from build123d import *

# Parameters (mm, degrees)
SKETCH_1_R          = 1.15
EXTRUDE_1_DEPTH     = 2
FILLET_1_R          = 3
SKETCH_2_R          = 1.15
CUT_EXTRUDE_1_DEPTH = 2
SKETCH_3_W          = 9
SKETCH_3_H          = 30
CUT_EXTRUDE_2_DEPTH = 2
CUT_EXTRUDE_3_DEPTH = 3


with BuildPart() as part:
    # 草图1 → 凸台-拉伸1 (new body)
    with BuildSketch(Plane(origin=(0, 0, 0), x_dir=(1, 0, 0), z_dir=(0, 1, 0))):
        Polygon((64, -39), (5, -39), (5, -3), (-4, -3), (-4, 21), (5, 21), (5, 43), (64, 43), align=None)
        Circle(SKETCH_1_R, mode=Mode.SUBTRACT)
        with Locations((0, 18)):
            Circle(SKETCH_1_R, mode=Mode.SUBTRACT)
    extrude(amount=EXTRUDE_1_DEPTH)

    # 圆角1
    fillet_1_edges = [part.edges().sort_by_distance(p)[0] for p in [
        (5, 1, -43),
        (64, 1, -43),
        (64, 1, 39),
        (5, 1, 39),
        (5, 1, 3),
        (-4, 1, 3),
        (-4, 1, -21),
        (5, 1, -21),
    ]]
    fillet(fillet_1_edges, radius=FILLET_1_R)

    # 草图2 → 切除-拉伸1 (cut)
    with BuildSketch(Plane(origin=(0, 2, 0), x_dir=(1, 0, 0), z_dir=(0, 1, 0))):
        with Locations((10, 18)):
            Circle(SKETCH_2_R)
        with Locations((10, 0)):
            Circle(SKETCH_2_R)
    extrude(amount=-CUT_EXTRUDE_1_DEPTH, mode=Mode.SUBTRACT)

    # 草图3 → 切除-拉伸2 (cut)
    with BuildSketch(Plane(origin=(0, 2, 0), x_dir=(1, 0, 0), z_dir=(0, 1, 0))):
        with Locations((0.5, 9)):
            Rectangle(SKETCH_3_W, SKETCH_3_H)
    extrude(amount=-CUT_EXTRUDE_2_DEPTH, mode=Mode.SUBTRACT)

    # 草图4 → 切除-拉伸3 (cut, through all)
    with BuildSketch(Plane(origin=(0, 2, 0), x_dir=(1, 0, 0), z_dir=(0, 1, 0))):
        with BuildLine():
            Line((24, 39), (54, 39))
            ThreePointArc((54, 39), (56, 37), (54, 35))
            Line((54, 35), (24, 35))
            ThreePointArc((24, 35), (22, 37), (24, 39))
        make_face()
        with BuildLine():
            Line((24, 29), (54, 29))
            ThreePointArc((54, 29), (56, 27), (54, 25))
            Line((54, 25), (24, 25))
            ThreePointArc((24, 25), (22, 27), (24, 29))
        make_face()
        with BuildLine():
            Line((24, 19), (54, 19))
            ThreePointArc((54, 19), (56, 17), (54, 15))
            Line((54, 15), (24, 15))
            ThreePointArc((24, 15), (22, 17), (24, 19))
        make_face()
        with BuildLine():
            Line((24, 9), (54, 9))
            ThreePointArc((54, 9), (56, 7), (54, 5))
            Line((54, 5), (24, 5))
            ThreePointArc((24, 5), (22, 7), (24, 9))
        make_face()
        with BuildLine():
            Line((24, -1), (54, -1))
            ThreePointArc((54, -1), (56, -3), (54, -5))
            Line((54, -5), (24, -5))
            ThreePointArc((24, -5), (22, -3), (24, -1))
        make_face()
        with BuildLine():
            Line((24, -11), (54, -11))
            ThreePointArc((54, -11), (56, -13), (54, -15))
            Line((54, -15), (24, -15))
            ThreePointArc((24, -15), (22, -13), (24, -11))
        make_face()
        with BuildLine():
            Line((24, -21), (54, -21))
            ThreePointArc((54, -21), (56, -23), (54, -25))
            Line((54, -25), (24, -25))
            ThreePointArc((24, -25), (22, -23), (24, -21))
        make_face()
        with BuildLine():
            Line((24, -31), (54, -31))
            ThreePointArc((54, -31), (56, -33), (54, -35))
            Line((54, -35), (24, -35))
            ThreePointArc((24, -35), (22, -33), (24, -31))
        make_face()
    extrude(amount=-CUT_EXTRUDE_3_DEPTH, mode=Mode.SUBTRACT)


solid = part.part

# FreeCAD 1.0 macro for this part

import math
import FreeCAD as App
import Part
import Sketcher
from FreeCAD import Vector
Q = App.Units.Quantity


def edges_at(feature, points):
    """Names of the edges that pass closest to the given points."""
    edges = feature.Shape.Edges
    near = lambda p: min(range(len(edges)), key=lambda i: edges[i].distToShape(Part.Vertex(*p))[0])
    return sorted({f"Edge{near(p) + 1}" for p in points})


def add_polygon(sketch, points):
    """Adds a closed chain of lines whose ends are joined by coincident constraints."""
    first, n = sketch.GeometryCount, len(points)
    for a, b in zip(points, points[1:] + points[:1]):
        sketch.addGeometry(Part.LineSegment(App.Vector(*a, 0), App.Vector(*b, 0)), False)
    for i in range(n):
        sketch.addConstraint(Sketcher.Constraint("Coincident", first + i, 2, first + (i + 1) % n, 1))

doc = App.newDocument("Part")
body = doc.addObject("PartDesign::Body", "Body")

# Sketch on XZ plane
sketch1 = doc.addObject("Sketcher::SketchObject", "Sketch")
body.addObject(sketch1)
sketch1.AttachmentSupport = (doc.XZ_Plane, [""])
sketch1.MapMode = "FlatFace"
add_polygon(sketch1, [(5, 39), (64, 39), (64, -43), (5, -43), (5, -21), (-4, -21), (-4, 3), (5, 3)])  # lines 0-7
sketch1.addGeometry(Part.Circle(Vector(0, 0, 0), Vector(0, 0, 1), 1.1), False)  # 8
sketch1.addGeometry(Part.Circle(Vector(0, -18, 0), Vector(0, 0, 1), 1.1), False)  # 9
sketch1.addConstraint(Sketcher.Constraint("Horizontal", 0))
sketch1.addConstraint(Sketcher.Constraint("Vertical", 1))
sketch1.addConstraint(Sketcher.Constraint("Horizontal", 2))
sketch1.addConstraint(Sketcher.Constraint("Vertical", 3))
sketch1.addConstraint(Sketcher.Constraint("Horizontal", 4))
sketch1.addConstraint(Sketcher.Constraint("Vertical", 5))
sketch1.addConstraint(Sketcher.Constraint("Horizontal", 6))
sketch1.addConstraint(Sketcher.Constraint("Vertical", 7))
sketch1.addConstraint(Sketcher.Constraint("Coincident", 8, 3, -1, 1))
sketch1.addConstraint(Sketcher.Constraint("Equal", 8, 9))
sketch1.addConstraint(Sketcher.Constraint("PointOnObject", 9, 3, -2))
sketch1.addConstraint(Sketcher.Constraint("Vertical", 3, 2, 6, 2))
sketch1.addConstraint(Sketcher.Constraint("Diameter", 8, Q("2.3 mm")))
sketch1.addConstraint(Sketcher.Constraint("DistanceX", 0, 1, 0, 2, Q("59 mm")))
sketch1.addConstraint(Sketcher.Constraint("DistanceX", 4, 2, 4, 1, Q("9 mm")))
sketch1.addConstraint(Sketcher.Constraint("DistanceY", 1, 2, 1, 1, Q("82 mm")))
sketch1.addConstraint(Sketcher.Constraint("DistanceY", 3, 1, 3, 2, Q("22 mm")))
sketch1.addConstraint(Sketcher.Constraint("DistanceY", 5, 1, 5, 2, Q("24 mm")))
sketch1.addConstraint(Sketcher.Constraint("DistanceY", 9, 3, -1, 1, Q("18 mm")))
sketch1.addConstraint(Sketcher.Constraint("DistanceX", -1, 1, 0, 2, Q("64 mm")))
sketch1.addConstraint(Sketcher.Constraint("DistanceY", -1, 1, 0, 2, Q("39 mm")))
pad1 = doc.addObject("PartDesign::Pad", "Pad")
body.addObject(pad1)
pad1.Profile = sketch1
pad1.Length = 2
pad1.Reversed = True
doc.recompute()

fillet = doc.addObject("PartDesign::Fillet", "Fillet")
body.addObject(fillet)
fillet.Base = (pad1, edges_at(pad1, [
    (5, 1, -43),
    (64, 1, -43),
    (64, 1, 39),
    (5, 1, 39),
    (5, 1, 3),
    (-4, 1, 3),
    (-4, 1, -21),
    (5, 1, -21),
]))
fillet.Radius = 3

# Sketch on XZ plane
sketch2 = doc.addObject("Sketcher::SketchObject", "Sketch001")
body.addObject(sketch2)
sketch2.AttachmentSupport = (doc.XZ_Plane, [""])
sketch2.MapMode = "FlatFace"
sketch2.AttachmentOffset = App.Placement(Vector(0, 0, -2), App.Rotation())
sketch2.addGeometry(Part.Circle(Vector(10, -18, 0), Vector(0, 0, 1), 1.1), False)
sketch2.addGeometry(Part.Circle(Vector(10, 0, 0), Vector(0, 0, 1), 1.1), False)
sketch2.addConstraint(Sketcher.Constraint("Equal", 0, 1))
sketch2.addConstraint(Sketcher.Constraint("PointOnObject", 1, 3, -1))
sketch2.addConstraint(Sketcher.Constraint("Vertical", 0, 3, 1, 3))
sketch2.addConstraint(Sketcher.Constraint("Diameter", 0, Q("2.3 mm")))
sketch2.addConstraint(Sketcher.Constraint("DistanceX", -1, 1, 0, 3, Q("10 mm")))
sketch2.addConstraint(Sketcher.Constraint("DistanceY", 0, 3, -1, 1, Q("18 mm")))
pocket1 = doc.addObject("PartDesign::Pocket", "Pocket")
body.addObject(pocket1)
pocket1.Profile = sketch2
pocket1.Length = 2
pocket1.Reversed = True

# Sketch on XZ plane
sketch3 = doc.addObject("Sketcher::SketchObject", "Sketch002")
body.addObject(sketch3)
sketch3.AttachmentSupport = (doc.XZ_Plane, [""])
sketch3.MapMode = "FlatFace"
sketch3.AttachmentOffset = App.Placement(Vector(0, 0, -2), App.Rotation())
add_polygon(sketch3, [(-4, -24), (-4, 6), (5, 6), (5, -24)])  # lines 0-3
sketch3.addConstraint(Sketcher.Constraint("Vertical", 0))
sketch3.addConstraint(Sketcher.Constraint("Horizontal", 1))
sketch3.addConstraint(Sketcher.Constraint("Vertical", 2))
sketch3.addConstraint(Sketcher.Constraint("Horizontal", 3))
sketch3.addConstraint(Sketcher.Constraint("DistanceX", 1, 1, 1, 2, Q("9 mm")))
sketch3.addConstraint(Sketcher.Constraint("DistanceY", 0, 1, 0, 2, Q("30 mm")))
sketch3.addConstraint(Sketcher.Constraint("DistanceX", 0, 2, -1, 1, Q("4 mm")))
sketch3.addConstraint(Sketcher.Constraint("DistanceY", -1, 1, 0, 2, Q("6 mm")))
pocket2 = doc.addObject("PartDesign::Pocket", "Pocket001")
body.addObject(pocket2)
pocket2.Profile = sketch3
pocket2.Length = 2
pocket2.Reversed = True

# Sketch on XZ plane
sketch4 = doc.addObject("Sketcher::SketchObject", "Sketch003")
body.addObject(sketch4)
sketch4.AttachmentSupport = (doc.XZ_Plane, [""])
sketch4.MapMode = "FlatFace"
sketch4.AttachmentOffset = App.Placement(Vector(0, 0, -2), App.Rotation())
sketch4.addGeometry(Part.LineSegment(Vector(54, -39, 0), Vector(24, -39, 0)), False)
sketch4.addGeometry(Part.ArcOfCircle(Part.Circle(Vector(24, -37, 0), Vector(0, 0, 1), 2), math.radians(90), math.radians(270)), False)
sketch4.addGeometry(Part.LineSegment(Vector(24, -35, 0), Vector(54, -35, 0)), False)
sketch4.addGeometry(Part.ArcOfCircle(Part.Circle(Vector(54, -37, 0), Vector(0, 0, 1), 2), math.radians(-90), math.radians(90)), False)
sketch4.addGeometry(Part.LineSegment(Vector(54, -29, 0), Vector(24, -29, 0)), False)
sketch4.addGeometry(Part.ArcOfCircle(Part.Circle(Vector(24, -27, 0), Vector(0, 0, 1), 2), math.radians(90), math.radians(270)), False)
sketch4.addGeometry(Part.LineSegment(Vector(24, -25, 0), Vector(54, -25, 0)), False)
sketch4.addGeometry(Part.ArcOfCircle(Part.Circle(Vector(54, -27, 0), Vector(0, 0, 1), 2), math.radians(-90), math.radians(90)), False)
sketch4.addGeometry(Part.LineSegment(Vector(54, -19, 0), Vector(24, -19, 0)), False)
sketch4.addGeometry(Part.ArcOfCircle(Part.Circle(Vector(24, -17, 0), Vector(0, 0, 1), 2), math.radians(90), math.radians(270)), False)
sketch4.addGeometry(Part.LineSegment(Vector(24, -15, 0), Vector(54, -15, 0)), False)
sketch4.addGeometry(Part.ArcOfCircle(Part.Circle(Vector(54, -17, 0), Vector(0, 0, 1), 2), math.radians(-90), math.radians(90)), False)
sketch4.addGeometry(Part.LineSegment(Vector(54, -9, 0), Vector(24, -9, 0)), False)
sketch4.addGeometry(Part.ArcOfCircle(Part.Circle(Vector(24, -7, 0), Vector(0, 0, 1), 2), math.radians(90), math.radians(270)), False)
sketch4.addGeometry(Part.LineSegment(Vector(24, -5, 0), Vector(54, -5, 0)), False)
sketch4.addGeometry(Part.ArcOfCircle(Part.Circle(Vector(54, -7, 0), Vector(0, 0, 1), 2), math.radians(-90), math.radians(90)), False)
sketch4.addGeometry(Part.LineSegment(Vector(54, 1, 0), Vector(24, 1, 0)), False)
sketch4.addGeometry(Part.ArcOfCircle(Part.Circle(Vector(24, 3, 0), Vector(0, 0, 1), 2), math.radians(90), math.radians(270)), False)
sketch4.addGeometry(Part.LineSegment(Vector(24, 5, 0), Vector(54, 5, 0)), False)
sketch4.addGeometry(Part.ArcOfCircle(Part.Circle(Vector(54, 3, 0), Vector(0, 0, 1), 2), math.radians(-90), math.radians(90)), False)
sketch4.addGeometry(Part.LineSegment(Vector(54, 11, 0), Vector(24, 11, 0)), False)
sketch4.addGeometry(Part.ArcOfCircle(Part.Circle(Vector(24, 13, 0), Vector(0, 0, 1), 2), math.radians(90), math.radians(270)), False)
sketch4.addGeometry(Part.LineSegment(Vector(24, 15, 0), Vector(54, 15, 0)), False)
sketch4.addGeometry(Part.ArcOfCircle(Part.Circle(Vector(54, 13, 0), Vector(0, 0, 1), 2), math.radians(-90), math.radians(90)), False)
sketch4.addGeometry(Part.LineSegment(Vector(54, 21, 0), Vector(24, 21, 0)), False)
sketch4.addGeometry(Part.ArcOfCircle(Part.Circle(Vector(24, 23, 0), Vector(0, 0, 1), 2), math.radians(90), math.radians(270)), False)
sketch4.addGeometry(Part.LineSegment(Vector(24, 25, 0), Vector(54, 25, 0)), False)
sketch4.addGeometry(Part.ArcOfCircle(Part.Circle(Vector(54, 23, 0), Vector(0, 0, 1), 2), math.radians(-90), math.radians(90)), False)
sketch4.addGeometry(Part.LineSegment(Vector(54, 31, 0), Vector(24, 31, 0)), False)
sketch4.addGeometry(Part.ArcOfCircle(Part.Circle(Vector(24, 33, 0), Vector(0, 0, 1), 2), math.radians(90), math.radians(270)), False)
sketch4.addGeometry(Part.LineSegment(Vector(24, 35, 0), Vector(54, 35, 0)), False)
sketch4.addGeometry(Part.ArcOfCircle(Part.Circle(Vector(54, 33, 0), Vector(0, 0, 1), 2), math.radians(-90), math.radians(90)), False)
sketch4.addConstraint(Sketcher.Constraint("Tangent", 0, 2, 1, 2))
sketch4.addConstraint(Sketcher.Constraint("Tangent", 1, 1, 2, 1))
sketch4.addConstraint(Sketcher.Constraint("Tangent", 2, 2, 3, 2))
sketch4.addConstraint(Sketcher.Constraint("Tangent", 3, 1, 0, 1))
sketch4.addConstraint(Sketcher.Constraint("Tangent", 4, 2, 5, 2))
sketch4.addConstraint(Sketcher.Constraint("Tangent", 5, 1, 6, 1))
sketch4.addConstraint(Sketcher.Constraint("Tangent", 6, 2, 7, 2))
sketch4.addConstraint(Sketcher.Constraint("Tangent", 7, 1, 4, 1))
sketch4.addConstraint(Sketcher.Constraint("Tangent", 8, 2, 9, 2))
sketch4.addConstraint(Sketcher.Constraint("Tangent", 9, 1, 10, 1))
sketch4.addConstraint(Sketcher.Constraint("Tangent", 10, 2, 11, 2))
sketch4.addConstraint(Sketcher.Constraint("Tangent", 11, 1, 8, 1))
sketch4.addConstraint(Sketcher.Constraint("Tangent", 12, 2, 13, 2))
sketch4.addConstraint(Sketcher.Constraint("Tangent", 13, 1, 14, 1))
sketch4.addConstraint(Sketcher.Constraint("Tangent", 14, 2, 15, 2))
sketch4.addConstraint(Sketcher.Constraint("Tangent", 15, 1, 12, 1))
sketch4.addConstraint(Sketcher.Constraint("Tangent", 16, 2, 17, 2))
sketch4.addConstraint(Sketcher.Constraint("Tangent", 17, 1, 18, 1))
sketch4.addConstraint(Sketcher.Constraint("Tangent", 18, 2, 19, 2))
sketch4.addConstraint(Sketcher.Constraint("Tangent", 19, 1, 16, 1))
sketch4.addConstraint(Sketcher.Constraint("Tangent", 20, 2, 21, 2))
sketch4.addConstraint(Sketcher.Constraint("Tangent", 21, 1, 22, 1))
sketch4.addConstraint(Sketcher.Constraint("Tangent", 22, 2, 23, 2))
sketch4.addConstraint(Sketcher.Constraint("Tangent", 23, 1, 20, 1))
sketch4.addConstraint(Sketcher.Constraint("Tangent", 24, 2, 25, 2))
sketch4.addConstraint(Sketcher.Constraint("Tangent", 25, 1, 26, 1))
sketch4.addConstraint(Sketcher.Constraint("Tangent", 26, 2, 27, 2))
sketch4.addConstraint(Sketcher.Constraint("Tangent", 27, 1, 24, 1))
sketch4.addConstraint(Sketcher.Constraint("Tangent", 28, 2, 29, 2))
sketch4.addConstraint(Sketcher.Constraint("Tangent", 29, 1, 30, 1))
sketch4.addConstraint(Sketcher.Constraint("Tangent", 30, 2, 31, 2))
sketch4.addConstraint(Sketcher.Constraint("Tangent", 31, 1, 28, 1))
sketch4.addConstraint(Sketcher.Constraint("Horizontal", 0))
sketch4.addConstraint(Sketcher.Constraint("Horizontal", 2))
sketch4.addConstraint(Sketcher.Constraint("Horizontal", 4))
sketch4.addConstraint(Sketcher.Constraint("Horizontal", 6))
sketch4.addConstraint(Sketcher.Constraint("Horizontal", 8))
sketch4.addConstraint(Sketcher.Constraint("Horizontal", 10))
sketch4.addConstraint(Sketcher.Constraint("Horizontal", 12))
sketch4.addConstraint(Sketcher.Constraint("Horizontal", 14))
sketch4.addConstraint(Sketcher.Constraint("Horizontal", 16))
sketch4.addConstraint(Sketcher.Constraint("Horizontal", 18))
sketch4.addConstraint(Sketcher.Constraint("Horizontal", 20))
sketch4.addConstraint(Sketcher.Constraint("Horizontal", 22))
sketch4.addConstraint(Sketcher.Constraint("Horizontal", 24))
sketch4.addConstraint(Sketcher.Constraint("Horizontal", 26))
sketch4.addConstraint(Sketcher.Constraint("Horizontal", 28))
sketch4.addConstraint(Sketcher.Constraint("Horizontal", 30))
sketch4.addConstraint(Sketcher.Constraint("Equal", 3, 5))
sketch4.addConstraint(Sketcher.Constraint("Equal", 7, 9))
sketch4.addConstraint(Sketcher.Constraint("Equal", 11, 13))
sketch4.addConstraint(Sketcher.Constraint("Equal", 15, 17))
sketch4.addConstraint(Sketcher.Constraint("Equal", 19, 21))
sketch4.addConstraint(Sketcher.Constraint("Equal", 23, 25))
sketch4.addConstraint(Sketcher.Constraint("Equal", 27, 29))
sketch4.addConstraint(Sketcher.Constraint("Symmetric", 13, 1, 17, 1, -1))
sketch4.addConstraint(Sketcher.Constraint("Symmetric", 9, 1, 21, 1, -1))
sketch4.addConstraint(Sketcher.Constraint("Symmetric", 5, 1, 25, 1, -1))
sketch4.addConstraint(Sketcher.Constraint("Symmetric", 1, 1, 29, 1, -1))
sketch4.addConstraint(Sketcher.Constraint("Vertical", 1, 3, 5, 3))
sketch4.addConstraint(Sketcher.Constraint("Vertical", 3, 3, 7, 3))
sketch4.addConstraint(Sketcher.Constraint("Vertical", 5, 3, 9, 3))
sketch4.addConstraint(Sketcher.Constraint("Vertical", 7, 3, 11, 3))
sketch4.addConstraint(Sketcher.Constraint("Vertical", 9, 3, 13, 3))
sketch4.addConstraint(Sketcher.Constraint("Vertical", 11, 3, 15, 3))
sketch4.addConstraint(Sketcher.Constraint("Vertical", 15, 3, 19, 3))
sketch4.addConstraint(Sketcher.Constraint("Vertical", 19, 3, 23, 3))
sketch4.addConstraint(Sketcher.Constraint("Vertical", 23, 3, 27, 3))
sketch4.addConstraint(Sketcher.Constraint("Vertical", 27, 3, 31, 3))
sketch4.addConstraint(Sketcher.Constraint("Radius", 1, Q("2 mm")))
sketch4.addConstraint(Sketcher.Constraint("DistanceX", 0, 2, 0, 1, Q("30 mm")))
sketch4.addConstraint(Sketcher.Constraint("DistanceX", -1, 1, 1, 3, Q("24 mm")))
sketch4.addConstraint(Sketcher.Constraint("DistanceY", 1, 3, -1, 1, Q("37 mm")))
sketch4.addConstraint(Sketcher.Constraint("DistanceY", 5, 3, -1, 1, Q("27 mm")))
sketch4.addConstraint(Sketcher.Constraint("DistanceY", 9, 3, -1, 1, Q("17 mm")))
sketch4.addConstraint(Sketcher.Constraint("DistanceY", 13, 3, -1, 1, Q("7 mm")))
pocket3 = doc.addObject("PartDesign::Pocket", "Pocket002")
body.addObject(pocket3)
pocket3.Profile = sketch4
pocket3.Type = "ThroughAll"
pocket3.Reversed = True

doc.recompute()
